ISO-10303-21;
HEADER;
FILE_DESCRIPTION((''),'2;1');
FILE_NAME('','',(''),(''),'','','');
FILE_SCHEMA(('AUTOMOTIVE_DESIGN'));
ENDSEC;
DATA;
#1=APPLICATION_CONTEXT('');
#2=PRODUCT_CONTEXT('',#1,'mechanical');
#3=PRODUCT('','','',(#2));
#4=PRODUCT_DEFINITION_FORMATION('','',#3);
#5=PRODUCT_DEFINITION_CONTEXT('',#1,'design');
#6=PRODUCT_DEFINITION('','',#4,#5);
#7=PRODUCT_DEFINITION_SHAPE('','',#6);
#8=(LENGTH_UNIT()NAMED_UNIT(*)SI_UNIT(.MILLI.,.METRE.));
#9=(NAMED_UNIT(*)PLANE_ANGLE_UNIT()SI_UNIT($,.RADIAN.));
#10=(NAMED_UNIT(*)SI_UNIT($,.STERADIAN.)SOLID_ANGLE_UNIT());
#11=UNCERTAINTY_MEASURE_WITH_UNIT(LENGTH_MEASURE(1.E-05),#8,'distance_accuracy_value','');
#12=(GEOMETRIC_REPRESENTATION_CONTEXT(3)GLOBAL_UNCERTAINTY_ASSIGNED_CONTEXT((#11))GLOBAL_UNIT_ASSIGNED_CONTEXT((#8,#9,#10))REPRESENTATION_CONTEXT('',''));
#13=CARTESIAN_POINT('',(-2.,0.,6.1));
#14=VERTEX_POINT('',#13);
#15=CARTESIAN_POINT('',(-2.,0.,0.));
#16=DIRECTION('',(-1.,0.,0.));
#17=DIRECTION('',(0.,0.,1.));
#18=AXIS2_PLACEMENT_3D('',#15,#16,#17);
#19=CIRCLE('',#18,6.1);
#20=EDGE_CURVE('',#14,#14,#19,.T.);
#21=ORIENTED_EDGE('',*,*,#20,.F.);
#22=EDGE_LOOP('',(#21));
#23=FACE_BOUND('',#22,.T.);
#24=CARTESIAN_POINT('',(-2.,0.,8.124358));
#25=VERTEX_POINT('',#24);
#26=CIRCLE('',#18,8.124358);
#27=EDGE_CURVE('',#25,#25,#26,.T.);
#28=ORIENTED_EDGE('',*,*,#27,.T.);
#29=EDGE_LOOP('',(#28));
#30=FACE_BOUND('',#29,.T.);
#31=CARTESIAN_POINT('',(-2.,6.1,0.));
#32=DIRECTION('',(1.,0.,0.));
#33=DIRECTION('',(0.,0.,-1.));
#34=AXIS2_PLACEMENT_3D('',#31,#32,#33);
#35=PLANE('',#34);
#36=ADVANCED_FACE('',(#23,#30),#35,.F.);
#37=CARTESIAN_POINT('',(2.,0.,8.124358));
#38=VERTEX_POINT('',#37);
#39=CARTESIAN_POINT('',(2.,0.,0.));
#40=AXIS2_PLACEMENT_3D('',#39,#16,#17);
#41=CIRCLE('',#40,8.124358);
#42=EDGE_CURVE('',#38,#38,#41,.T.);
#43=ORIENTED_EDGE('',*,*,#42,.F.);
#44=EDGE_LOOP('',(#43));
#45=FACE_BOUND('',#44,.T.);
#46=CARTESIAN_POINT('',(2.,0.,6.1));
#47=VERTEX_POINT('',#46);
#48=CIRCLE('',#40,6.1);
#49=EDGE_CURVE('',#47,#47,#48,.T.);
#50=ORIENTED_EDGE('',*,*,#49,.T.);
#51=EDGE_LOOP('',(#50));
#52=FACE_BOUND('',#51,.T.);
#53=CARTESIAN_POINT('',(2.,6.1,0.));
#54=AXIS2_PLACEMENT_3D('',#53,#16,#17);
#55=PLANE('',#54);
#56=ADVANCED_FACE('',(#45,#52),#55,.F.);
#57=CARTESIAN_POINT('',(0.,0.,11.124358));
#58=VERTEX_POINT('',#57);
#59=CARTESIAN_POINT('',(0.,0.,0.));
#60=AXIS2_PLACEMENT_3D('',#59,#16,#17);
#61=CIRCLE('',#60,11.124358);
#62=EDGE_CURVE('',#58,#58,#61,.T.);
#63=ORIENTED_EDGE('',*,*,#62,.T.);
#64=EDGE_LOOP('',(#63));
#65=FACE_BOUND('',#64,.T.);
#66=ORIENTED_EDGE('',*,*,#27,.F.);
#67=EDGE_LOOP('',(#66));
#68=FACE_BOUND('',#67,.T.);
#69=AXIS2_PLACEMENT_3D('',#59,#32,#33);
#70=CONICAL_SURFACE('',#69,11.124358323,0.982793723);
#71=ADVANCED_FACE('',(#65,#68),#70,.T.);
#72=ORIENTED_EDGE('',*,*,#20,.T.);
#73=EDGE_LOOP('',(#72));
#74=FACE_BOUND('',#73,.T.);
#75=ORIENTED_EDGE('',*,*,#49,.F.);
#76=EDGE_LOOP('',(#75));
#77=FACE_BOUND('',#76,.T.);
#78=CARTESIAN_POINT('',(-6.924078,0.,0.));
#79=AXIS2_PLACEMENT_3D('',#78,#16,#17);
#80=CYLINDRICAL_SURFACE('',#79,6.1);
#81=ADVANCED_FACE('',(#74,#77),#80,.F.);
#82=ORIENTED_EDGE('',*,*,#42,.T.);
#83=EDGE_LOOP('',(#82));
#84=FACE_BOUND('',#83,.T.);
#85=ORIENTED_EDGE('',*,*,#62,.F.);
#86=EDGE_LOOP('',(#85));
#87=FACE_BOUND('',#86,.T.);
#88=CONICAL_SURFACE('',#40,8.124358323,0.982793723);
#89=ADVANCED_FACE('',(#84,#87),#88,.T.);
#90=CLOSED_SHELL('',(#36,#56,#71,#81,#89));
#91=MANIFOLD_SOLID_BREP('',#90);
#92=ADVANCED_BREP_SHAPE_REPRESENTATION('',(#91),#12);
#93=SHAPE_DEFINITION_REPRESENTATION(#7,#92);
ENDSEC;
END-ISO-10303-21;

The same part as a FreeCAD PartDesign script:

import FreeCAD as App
import Part
import Sketcher
from FreeCAD import Vector


def add_polygon(sketch, points):
    """Adds a closed chain of lines whose ends are joined by coincident constraints."""
    first, n = sketch.GeometryCount, len(points)
    for a, b in zip(points, points[1:] + points[:1]):
        sketch.addGeometry(Part.LineSegment(App.Vector(*a, 0), App.Vector(*b, 0)), False)
    for i in range(n):
        sketch.addConstraint(Sketcher.Constraint("Coincident", first + i, 2, first + (i + 1) % n, 1))

doc = App.newDocument("Part")
body = doc.addObject("PartDesign::Body", "Body")

# Sketch on XY plane
sketch1 = doc.addObject("Sketcher::SketchObject", "Sketch")
body.addObject(sketch1)
sketch1.AttachmentSupport = (doc.XY_Plane, [""])
sketch1.MapMode = "FlatFace"
add_polygon(sketch1, [(-2, 6.1), (2, 6.1), (2, 8.1), (0, 11.1), (-2, 8.1)])  # lines 0-4
sketch1.addConstraint([
    Sketcher.Constraint("Horizontal", 0),
    Sketcher.Constraint("Vertical", 1),
    Sketcher.Constraint("Vertical", 4),
    Sketcher.Constraint("Symmetric", 1, 2, 3, 2, -2),
    Sketcher.Constraint("PointOnObject", 2, 2, -2),
    Sketcher.Constraint("DistanceX", 0, 1, 0, 2, 4.0),
    Sketcher.Constraint("DistanceY", 1, 2, 2, 2, 3.0),
    Sketcher.Constraint("DistanceY", -1, 1, 0, 2, 6.1),
    Sketcher.Constraint("DistanceY", 1, 1, 1, 2, 2.024358),
])
revolution = doc.addObject("PartDesign::Revolution", "Revolution")
body.addObject(revolution)
revolution.Profile = sketch1
revolution.ReferenceAxis = (sketch1, ["H_Axis"])
revolution.Angle = 360

doc.recompute()
